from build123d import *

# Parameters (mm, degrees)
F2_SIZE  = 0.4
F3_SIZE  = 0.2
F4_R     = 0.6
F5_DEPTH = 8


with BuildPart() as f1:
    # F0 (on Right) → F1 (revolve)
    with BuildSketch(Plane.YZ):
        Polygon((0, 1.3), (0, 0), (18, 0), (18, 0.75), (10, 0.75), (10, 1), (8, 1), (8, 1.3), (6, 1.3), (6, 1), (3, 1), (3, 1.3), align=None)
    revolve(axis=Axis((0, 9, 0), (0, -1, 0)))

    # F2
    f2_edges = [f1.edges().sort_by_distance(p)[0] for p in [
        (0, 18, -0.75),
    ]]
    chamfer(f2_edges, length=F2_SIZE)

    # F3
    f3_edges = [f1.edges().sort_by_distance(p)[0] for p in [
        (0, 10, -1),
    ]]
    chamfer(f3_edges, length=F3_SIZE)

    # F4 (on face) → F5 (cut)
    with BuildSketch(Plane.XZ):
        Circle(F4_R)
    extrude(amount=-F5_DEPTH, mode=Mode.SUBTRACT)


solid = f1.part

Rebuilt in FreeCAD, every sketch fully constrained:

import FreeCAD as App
import Part
import Sketcher


def edges_at(feature, points):
    """Names of the edges that pass closest to the given points."""
    edges = feature.Shape.Edges
    near = lambda p: min(range(len(edges)), key=lambda i: edges[i].distToShape(Part.Vertex(*p))[0])
    return sorted({f"Edge{near(p) + 1}" for p in points})

doc = App.newDocument("Part")
params = doc.addObject("Spreadsheet::Sheet", "Params")
for row, (alias, value) in enumerate([
    ("sketch1_width", "18 mm"),
    ("sketch1_width2", "8 mm"),
    ("sketch1_width3", "2 mm"),
    ("sketch1_height", "1.3 mm"),
    ("sketch1_height2", "0.3 mm"),
    ("revolution_angle", "360 deg"),
    ("chamfer_size", "0.4 mm"),
    ("chamfer2_size", "0.2 mm"),
    ("sketch2_diameter", "1.2 mm"),
    ("pocket1_length", "8 mm"),
], start=1):
    params.set(f"A{row}", alias)
    params.set(f"B{row}", "=" + value)
    params.setAlias(f"B{row}", alias)

body = doc.addObject("PartDesign::Body", "Body")

# Sketch on YZ plane
sketch1 = body.newObject("Sketcher::SketchObject", "Sketch")
sketch1.AttachmentSupport = (doc.getObject("YZ_Plane"), [""])
sketch1.MapMode = "FlatFace"
sketch1.addGeometry([
    Part.LineSegment(App.Vector(0, 1.3, 0), App.Vector(0, 0, 0)),  # 0
    Part.LineSegment(App.Vector(0, 0, 0), App.Vector(18, 0, 0)),  # 1
    Part.LineSegment(App.Vector(18, 0, 0), App.Vector(18, 0.75, 0)),  # 2
    Part.LineSegment(App.Vector(18, 0.75, 0), App.Vector(10, 0.75, 0)),  # 3
    Part.LineSegment(App.Vector(10, 0.75, 0), App.Vector(10, 1, 0)),  # 4
    Part.LineSegment(App.Vector(10, 1, 0), App.Vector(8, 1, 0)),  # 5
    Part.LineSegment(App.Vector(8, 1, 0), App.Vector(8, 1.3, 0)),  # 6
    Part.LineSegment(App.Vector(8, 1.3, 0), App.Vector(6, 1.3, 0)),  # 7
    Part.LineSegment(App.Vector(6, 1.3, 0), App.Vector(6, 1, 0)),  # 8
    Part.LineSegment(App.Vector(6, 1, 0), App.Vector(3, 1, 0)),  # 9
    Part.LineSegment(App.Vector(3, 1, 0), App.Vector(3, 1.3, 0)),  # 10
    Part.LineSegment(App.Vector(3, 1.3, 0), App.Vector(0, 1.3, 0)),  # 11
], False)
sketch1.addConstraint([
    Sketcher.Constraint("Coincident", 0, 2, 1, 1),
    Sketcher.Constraint("Coincident", 1, 2, 2, 1),
    Sketcher.Constraint("Coincident", 2, 2, 3, 1),
    Sketcher.Constraint("Coincident", 3, 2, 4, 1),
    Sketcher.Constraint("Coincident", 4, 2, 5, 1),
    Sketcher.Constraint("Coincident", 5, 2, 6, 1),
    Sketcher.Constraint("Coincident", 6, 2, 7, 1),
    Sketcher.Constraint("Coincident", 7, 2, 8, 1),
    Sketcher.Constraint("Coincident", 8, 2, 9, 1),
    Sketcher.Constraint("Coincident", 9, 2, 10, 1),
    Sketcher.Constraint("Coincident", 10, 2, 11, 1),
    Sketcher.Constraint("Coincident", 11, 2, 0, 1),
    Sketcher.Constraint("Vertical", 0),
    Sketcher.Constraint("Horizontal", 1),
    Sketcher.Constraint("Vertical", 2),
    Sketcher.Constraint("Horizontal", 3),
    Sketcher.Constraint("Vertical", 4),
    Sketcher.Constraint("Horizontal", 5),
    Sketcher.Constraint("Vertical", 6),
    Sketcher.Constraint("Horizontal", 7),
    Sketcher.Constraint("Vertical", 8),
    Sketcher.Constraint("Horizontal", 9),
    Sketcher.Constraint("Vertical", 10),
    Sketcher.Constraint("Horizontal", 11),
    Sketcher.Constraint("Coincident", 0, 2, -1, 1),
    Sketcher.Constraint("Horizontal", 5, 2, 8, 2),
    Sketcher.Constraint("Horizontal", 7, 2, 10, 2),
    Sketcher.Constraint("Equal", 5, 7),
    Sketcher.Constraint("Equal", 9, 11),
    Sketcher.Constraint("DistanceX", 1, 1, 1, 2, 18.0),
    Sketcher.Constraint("DistanceX", 3, 2, 3, 1, 8.0),
    Sketcher.Constraint("DistanceX", 5, 2, 5, 1, 2.0),
    Sketcher.Constraint("DistanceY", 0, 2, 0, 1, 1.3),
    Sketcher.Constraint("DistanceY", 6, 1, 6, 2, 0.3),
    Sketcher.Constraint("DistanceY", 2, 1, 2, 2, 0.75),
])
sketch1.setExpression("Constraints[29]", "Params.sketch1_width")
sketch1.setExpression("Constraints[30]", "Params.sketch1_width2")
sketch1.setExpression("Constraints[31]", "Params.sketch1_width3")
sketch1.setExpression("Constraints[32]", "Params.sketch1_height")
sketch1.setExpression("Constraints[33]", "Params.sketch1_height2")
revolution = body.newObject("PartDesign::Revolution", "Revolution")
revolution.Profile = sketch1
revolution.ReferenceAxis = (sketch1, ["H_Axis"])
revolution.setExpression("Angle", "Params.revolution_angle")
doc.recompute()

chamfer = body.newObject("PartDesign::Chamfer", "Chamfer")
chamfer.Base = (revolution, edges_at(revolution, [(0, 18, -0.75)]))
chamfer.setExpression("Size", "Params.chamfer_size")
doc.recompute()

chamfer2 = body.newObject("PartDesign::Chamfer", "Chamfer001")
chamfer2.Base = (chamfer, edges_at(chamfer, [(0, 10, -1)]))
chamfer2.setExpression("Size", "Params.chamfer2_size")

# Sketch on XZ plane
sketch2 = body.newObject("Sketcher::SketchObject", "Sketch001")
sketch2.AttachmentSupport = (doc.getObject("XZ_Plane"), [""])
sketch2.MapMode = "FlatFace"
sketch2.addGeometry(Part.Circle(App.Vector(0, 0, 0), App.Vector(0, 0, 1), 0.6), False)
sketch2.addConstraint([
    Sketcher.Constraint("Coincident", 0, 3, -1, 1),
    Sketcher.Constraint("Diameter", 0, 1.2),
])
sketch2.setExpression("Constraints[1]", "Params.sketch2_diameter")
pocket1 = body.newObject("PartDesign::Pocket", "Pocket")
pocket1.Profile = sketch2
pocket1.setExpression("Length", "Params.pocket1_length")

doc.recompute()
